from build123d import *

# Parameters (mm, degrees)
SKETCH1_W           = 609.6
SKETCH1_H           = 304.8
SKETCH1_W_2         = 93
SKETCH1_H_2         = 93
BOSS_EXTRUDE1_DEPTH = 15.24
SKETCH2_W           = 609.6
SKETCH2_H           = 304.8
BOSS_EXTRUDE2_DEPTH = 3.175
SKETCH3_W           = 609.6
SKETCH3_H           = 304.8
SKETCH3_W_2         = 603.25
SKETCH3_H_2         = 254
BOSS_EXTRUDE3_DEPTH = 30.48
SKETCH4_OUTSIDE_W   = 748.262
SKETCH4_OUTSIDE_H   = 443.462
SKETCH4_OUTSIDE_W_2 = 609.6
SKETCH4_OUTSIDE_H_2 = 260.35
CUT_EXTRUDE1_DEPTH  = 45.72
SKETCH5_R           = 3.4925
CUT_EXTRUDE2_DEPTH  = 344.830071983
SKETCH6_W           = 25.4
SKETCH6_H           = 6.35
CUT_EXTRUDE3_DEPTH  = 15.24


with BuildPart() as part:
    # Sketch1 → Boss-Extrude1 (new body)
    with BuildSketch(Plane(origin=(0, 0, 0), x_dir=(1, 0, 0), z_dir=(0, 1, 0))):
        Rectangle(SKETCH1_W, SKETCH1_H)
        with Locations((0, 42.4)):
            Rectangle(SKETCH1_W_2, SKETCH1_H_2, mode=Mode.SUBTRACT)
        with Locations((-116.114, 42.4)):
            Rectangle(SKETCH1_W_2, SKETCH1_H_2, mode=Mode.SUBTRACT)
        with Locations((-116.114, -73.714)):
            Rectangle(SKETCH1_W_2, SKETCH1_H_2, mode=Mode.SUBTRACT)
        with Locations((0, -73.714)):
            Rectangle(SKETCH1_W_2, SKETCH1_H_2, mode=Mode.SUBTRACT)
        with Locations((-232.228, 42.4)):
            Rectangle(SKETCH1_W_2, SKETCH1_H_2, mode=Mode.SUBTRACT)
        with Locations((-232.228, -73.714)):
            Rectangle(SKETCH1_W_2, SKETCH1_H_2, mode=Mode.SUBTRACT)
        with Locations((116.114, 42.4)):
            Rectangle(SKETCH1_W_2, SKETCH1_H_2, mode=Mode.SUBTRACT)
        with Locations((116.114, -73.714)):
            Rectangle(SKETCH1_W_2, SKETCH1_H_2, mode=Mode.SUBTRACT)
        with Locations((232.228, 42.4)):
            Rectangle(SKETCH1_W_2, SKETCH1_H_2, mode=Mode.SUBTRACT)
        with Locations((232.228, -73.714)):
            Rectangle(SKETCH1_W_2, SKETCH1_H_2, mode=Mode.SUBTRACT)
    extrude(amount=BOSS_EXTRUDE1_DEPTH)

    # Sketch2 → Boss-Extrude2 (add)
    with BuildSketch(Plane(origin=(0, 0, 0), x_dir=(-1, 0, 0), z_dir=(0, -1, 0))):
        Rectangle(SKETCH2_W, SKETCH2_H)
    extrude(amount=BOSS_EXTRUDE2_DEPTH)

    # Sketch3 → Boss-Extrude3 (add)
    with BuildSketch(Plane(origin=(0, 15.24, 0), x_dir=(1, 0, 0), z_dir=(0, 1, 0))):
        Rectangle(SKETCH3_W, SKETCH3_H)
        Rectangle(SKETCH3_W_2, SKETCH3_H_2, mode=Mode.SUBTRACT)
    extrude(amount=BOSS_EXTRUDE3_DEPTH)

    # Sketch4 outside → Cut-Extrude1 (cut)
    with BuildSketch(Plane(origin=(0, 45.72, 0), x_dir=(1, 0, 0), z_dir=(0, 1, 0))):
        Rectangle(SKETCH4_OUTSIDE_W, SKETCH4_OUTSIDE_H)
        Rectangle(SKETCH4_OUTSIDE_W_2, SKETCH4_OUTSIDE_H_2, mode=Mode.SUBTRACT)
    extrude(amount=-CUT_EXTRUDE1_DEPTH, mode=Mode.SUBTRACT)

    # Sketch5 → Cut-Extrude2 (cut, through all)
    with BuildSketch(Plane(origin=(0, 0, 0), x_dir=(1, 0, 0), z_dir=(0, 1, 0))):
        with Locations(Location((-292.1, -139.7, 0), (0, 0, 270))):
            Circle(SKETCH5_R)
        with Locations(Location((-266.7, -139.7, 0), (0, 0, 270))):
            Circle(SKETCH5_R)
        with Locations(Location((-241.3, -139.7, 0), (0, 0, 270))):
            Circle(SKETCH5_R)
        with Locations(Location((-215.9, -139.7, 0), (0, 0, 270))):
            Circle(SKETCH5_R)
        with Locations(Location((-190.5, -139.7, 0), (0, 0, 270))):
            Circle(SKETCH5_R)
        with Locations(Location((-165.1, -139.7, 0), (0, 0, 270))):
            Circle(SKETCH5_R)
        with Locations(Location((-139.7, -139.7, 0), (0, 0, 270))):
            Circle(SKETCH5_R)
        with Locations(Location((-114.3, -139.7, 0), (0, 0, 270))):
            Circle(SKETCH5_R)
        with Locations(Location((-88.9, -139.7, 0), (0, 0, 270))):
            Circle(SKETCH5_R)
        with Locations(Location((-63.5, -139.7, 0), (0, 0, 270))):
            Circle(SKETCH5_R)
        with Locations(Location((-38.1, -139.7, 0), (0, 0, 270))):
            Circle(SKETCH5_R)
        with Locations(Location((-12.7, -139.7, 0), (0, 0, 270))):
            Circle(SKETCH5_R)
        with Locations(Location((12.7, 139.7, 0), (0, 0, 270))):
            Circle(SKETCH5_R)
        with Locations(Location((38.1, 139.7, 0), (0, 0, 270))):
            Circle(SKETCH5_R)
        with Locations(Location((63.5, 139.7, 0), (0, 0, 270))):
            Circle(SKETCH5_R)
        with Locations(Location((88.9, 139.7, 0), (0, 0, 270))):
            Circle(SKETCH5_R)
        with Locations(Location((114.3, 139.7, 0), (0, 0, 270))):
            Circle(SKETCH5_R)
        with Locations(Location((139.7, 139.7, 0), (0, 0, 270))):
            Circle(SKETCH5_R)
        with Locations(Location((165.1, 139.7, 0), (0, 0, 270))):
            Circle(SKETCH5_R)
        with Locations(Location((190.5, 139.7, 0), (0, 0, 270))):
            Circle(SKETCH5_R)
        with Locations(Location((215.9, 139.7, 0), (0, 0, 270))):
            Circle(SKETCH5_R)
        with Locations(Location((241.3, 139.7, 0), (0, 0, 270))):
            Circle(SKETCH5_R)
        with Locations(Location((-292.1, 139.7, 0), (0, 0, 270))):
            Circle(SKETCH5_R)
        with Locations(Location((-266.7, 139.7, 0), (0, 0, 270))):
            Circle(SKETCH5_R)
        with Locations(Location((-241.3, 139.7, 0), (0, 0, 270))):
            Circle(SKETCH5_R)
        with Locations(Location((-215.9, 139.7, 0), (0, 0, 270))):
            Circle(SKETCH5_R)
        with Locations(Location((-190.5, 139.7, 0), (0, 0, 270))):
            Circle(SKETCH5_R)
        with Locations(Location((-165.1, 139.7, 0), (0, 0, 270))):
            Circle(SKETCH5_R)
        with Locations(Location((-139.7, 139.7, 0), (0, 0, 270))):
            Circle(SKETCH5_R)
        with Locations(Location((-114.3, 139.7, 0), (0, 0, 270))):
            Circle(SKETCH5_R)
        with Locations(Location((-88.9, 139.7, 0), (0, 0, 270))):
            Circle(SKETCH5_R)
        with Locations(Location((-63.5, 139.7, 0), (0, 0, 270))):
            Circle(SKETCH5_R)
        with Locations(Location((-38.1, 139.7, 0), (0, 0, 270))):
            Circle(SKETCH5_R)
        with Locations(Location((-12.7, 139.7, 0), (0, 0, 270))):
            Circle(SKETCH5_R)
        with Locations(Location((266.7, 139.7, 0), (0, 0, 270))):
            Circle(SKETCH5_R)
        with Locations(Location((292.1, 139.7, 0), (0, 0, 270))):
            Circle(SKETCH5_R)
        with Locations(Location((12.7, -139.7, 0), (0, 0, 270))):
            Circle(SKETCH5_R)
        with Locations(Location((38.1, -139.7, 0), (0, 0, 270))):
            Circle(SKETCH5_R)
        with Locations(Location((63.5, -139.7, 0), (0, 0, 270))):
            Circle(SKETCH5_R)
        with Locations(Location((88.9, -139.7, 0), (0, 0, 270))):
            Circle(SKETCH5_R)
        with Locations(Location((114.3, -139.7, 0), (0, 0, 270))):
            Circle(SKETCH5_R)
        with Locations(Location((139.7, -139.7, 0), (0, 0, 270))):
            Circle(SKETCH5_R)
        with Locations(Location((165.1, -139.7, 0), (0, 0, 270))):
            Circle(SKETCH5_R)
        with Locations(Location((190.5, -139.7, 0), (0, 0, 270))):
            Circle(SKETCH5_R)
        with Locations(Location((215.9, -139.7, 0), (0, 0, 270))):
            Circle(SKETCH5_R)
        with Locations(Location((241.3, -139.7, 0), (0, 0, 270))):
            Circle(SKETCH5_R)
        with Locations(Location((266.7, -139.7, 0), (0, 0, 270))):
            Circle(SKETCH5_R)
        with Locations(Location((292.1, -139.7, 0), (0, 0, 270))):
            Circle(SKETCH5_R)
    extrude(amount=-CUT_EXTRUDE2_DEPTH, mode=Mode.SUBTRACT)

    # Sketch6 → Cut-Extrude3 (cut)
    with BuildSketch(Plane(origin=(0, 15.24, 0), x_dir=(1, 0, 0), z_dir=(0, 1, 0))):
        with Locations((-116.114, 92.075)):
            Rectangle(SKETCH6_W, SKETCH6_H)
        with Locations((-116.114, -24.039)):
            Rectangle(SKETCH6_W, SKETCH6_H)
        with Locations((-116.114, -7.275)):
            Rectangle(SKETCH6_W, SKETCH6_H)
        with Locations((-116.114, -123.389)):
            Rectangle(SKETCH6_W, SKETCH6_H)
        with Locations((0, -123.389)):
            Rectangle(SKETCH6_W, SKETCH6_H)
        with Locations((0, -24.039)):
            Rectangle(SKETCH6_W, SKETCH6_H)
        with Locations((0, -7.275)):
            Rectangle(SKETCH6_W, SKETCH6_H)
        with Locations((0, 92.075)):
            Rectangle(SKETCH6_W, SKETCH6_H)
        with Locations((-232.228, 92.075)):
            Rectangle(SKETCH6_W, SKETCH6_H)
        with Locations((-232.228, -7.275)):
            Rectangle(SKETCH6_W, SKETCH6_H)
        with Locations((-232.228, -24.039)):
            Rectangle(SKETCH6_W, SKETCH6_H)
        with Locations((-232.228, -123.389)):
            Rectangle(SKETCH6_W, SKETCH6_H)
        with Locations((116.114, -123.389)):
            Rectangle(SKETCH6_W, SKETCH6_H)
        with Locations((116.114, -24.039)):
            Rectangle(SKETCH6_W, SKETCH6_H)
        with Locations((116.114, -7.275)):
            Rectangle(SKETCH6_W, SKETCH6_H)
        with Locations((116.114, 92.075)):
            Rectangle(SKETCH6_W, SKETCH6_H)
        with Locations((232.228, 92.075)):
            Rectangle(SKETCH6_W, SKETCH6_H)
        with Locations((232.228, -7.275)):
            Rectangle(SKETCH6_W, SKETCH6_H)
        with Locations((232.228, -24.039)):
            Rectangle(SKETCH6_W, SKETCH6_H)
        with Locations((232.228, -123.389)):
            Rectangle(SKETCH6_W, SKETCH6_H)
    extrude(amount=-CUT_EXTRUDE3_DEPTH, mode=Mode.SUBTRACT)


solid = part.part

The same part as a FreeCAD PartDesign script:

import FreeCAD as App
import Part
import Sketcher
from FreeCAD import Vector
Q = App.Units.Quantity


def add_polygon(sketch, points):
    """Adds a closed chain of lines whose ends are joined by coincident constraints."""
    first, n = sketch.GeometryCount, len(points)
    for a, b in zip(points, points[1:] + points[:1]):
        sketch.addGeometry(Part.LineSegment(App.Vector(*a, 0), App.Vector(*b, 0)), False)
    for i in range(n):
        sketch.addConstraint(Sketcher.Constraint("Coincident", first + i, 2, first + (i + 1) % n, 1))

doc = App.newDocument("Part")
body = doc.addObject("PartDesign::Body", "Body")

# Sketch on XZ plane
sketch1 = body.newObject("Sketcher::SketchObject", "Sketch")
sketch1.AttachmentSupport = (doc.getObject("XZ_Plane"), [""])
sketch1.MapMode = "FlatFace"
add_polygon(sketch1, [(-304.8, -152.4), (-304.8, 152.4), (304.8, 152.4), (304.8, -152.4)])  # lines 0-3
add_polygon(sketch1, [(-185.728, 120.214), (-278.728, 120.214), (-278.728, 27.214), (-185.728, 27.214)])  # lines 4-7
add_polygon(sketch1, [(-69.614, 120.214), (-162.614, 120.214), (-162.614, 27.214), (-69.614, 27.214)])  # lines 8-11
add_polygon(sketch1, [(46.5, 120.214), (-46.5, 120.214), (-46.5, 27.214), (46.5, 27.214)])  # lines 12-15
add_polygon(sketch1, [(162.614, 120.214), (69.614, 120.214), (69.614, 27.214), (162.614, 27.214)])  # lines 16-19
add_polygon(sketch1, [(278.728, 120.214), (185.728, 120.214), (185.728, 27.214), (278.728, 27.214)])  # lines 20-23
add_polygon(sketch1, [(-185.728, 4.1), (-278.728, 4.1), (-278.728, -88.9), (-185.728, -88.9)])  # lines 24-27
add_polygon(sketch1, [(-69.614, 4.1), (-162.614, 4.1), (-162.614, -88.9), (-69.614, -88.9)])  # lines 28-31
add_polygon(sketch1, [(46.5, 4.1), (-46.5, 4.1), (-46.5, -88.9), (46.5, -88.9)])  # lines 32-35
add_polygon(sketch1, [(162.614, 4.1), (69.614, 4.1), (69.614, -88.9), (162.614, -88.9)])  # lines 36-39
add_polygon(sketch1, [(278.728, 4.1), (185.728, 4.1), (185.728, -88.9), (278.728, -88.9)])  # lines 40-43
sketch1.addConstraint([
    Sketcher.Constraint("Vertical", 0),
    Sketcher.Constraint("Horizontal", 1),
    Sketcher.Constraint("Vertical", 2),
    Sketcher.Constraint("Horizontal", 3),
    Sketcher.Constraint("Horizontal", 4),
    Sketcher.Constraint("Vertical", 5),
    Sketcher.Constraint("Horizontal", 6),
    Sketcher.Constraint("Vertical", 7),
    Sketcher.Constraint("Horizontal", 8),
    Sketcher.Constraint("Vertical", 9),
    Sketcher.Constraint("Horizontal", 10),
    Sketcher.Constraint("Vertical", 11),
    Sketcher.Constraint("Horizontal", 12),
    Sketcher.Constraint("Vertical", 13),
    Sketcher.Constraint("Horizontal", 14),
    Sketcher.Constraint("Vertical", 15),
    Sketcher.Constraint("Horizontal", 16),
    Sketcher.Constraint("Vertical", 17),
    Sketcher.Constraint("Horizontal", 18),
    Sketcher.Constraint("Vertical", 19),
    Sketcher.Constraint("Horizontal", 20),
    Sketcher.Constraint("Vertical", 21),
    Sketcher.Constraint("Horizontal", 22),
    Sketcher.Constraint("Vertical", 23),
    Sketcher.Constraint("Horizontal", 24),
    Sketcher.Constraint("Vertical", 25),
    Sketcher.Constraint("Horizontal", 26),
    Sketcher.Constraint("Vertical", 27),
    Sketcher.Constraint("Horizontal", 28),
    Sketcher.Constraint("Vertical", 29),
    Sketcher.Constraint("Horizontal", 30),
    Sketcher.Constraint("Vertical", 31),
    Sketcher.Constraint("Horizontal", 32),
    Sketcher.Constraint("Vertical", 33),
    Sketcher.Constraint("Horizontal", 34),
    Sketcher.Constraint("Vertical", 35),
    Sketcher.Constraint("Horizontal", 36),
    Sketcher.Constraint("Vertical", 37),
    Sketcher.Constraint("Horizontal", 38),
    Sketcher.Constraint("Vertical", 39),
    Sketcher.Constraint("Horizontal", 40),
    Sketcher.Constraint("Vertical", 41),
    Sketcher.Constraint("Horizontal", 42),
    Sketcher.Constraint("Vertical", 43),
    Sketcher.Constraint("Symmetric", 0, 2, 2, 2, -1, 1),
    Sketcher.Constraint("Symmetric", 11, 2, 16, 2, -2),
    Sketcher.Constraint("Symmetric", 9, 2, 18, 2, -2),
    Sketcher.Constraint("Symmetric", 7, 2, 20, 2, -2),
    Sketcher.Constraint("Symmetric", 5, 2, 22, 2, -2),
    Sketcher.Constraint("Symmetric", 31, 2, 36, 2, -2),
    Sketcher.Constraint("Symmetric", 29, 2, 38, 2, -2),
    Sketcher.Constraint("Symmetric", 27, 2, 40, 2, -2),
    Sketcher.Constraint("Symmetric", 25, 2, 42, 2, -2),
    Sketcher.Constraint("Horizontal", 7, 2, 8, 2),
    Sketcher.Constraint("Horizontal", 6, 2, 9, 2),
    Sketcher.Constraint("Horizontal", 11, 2, 12, 2),
    Sketcher.Constraint("Horizontal", 10, 2, 13, 2),
    Sketcher.Constraint("Horizontal", 27, 2, 28, 2),
    Sketcher.Constraint("Horizontal", 26, 2, 29, 2),
    Sketcher.Constraint("Horizontal", 31, 2, 32, 2),
    Sketcher.Constraint("Horizontal", 30, 2, 33, 2),
    Sketcher.Constraint("Vertical", 5, 2, 24, 2),
    Sketcher.Constraint("Vertical", 7, 2, 26, 2),
    Sketcher.Constraint("Vertical", 9, 2, 28, 2),
    Sketcher.Constraint("Vertical", 11, 2, 30, 2),
    Sketcher.Constraint("Vertical", 13, 2, 32, 2),
    Sketcher.Constraint("Vertical", 15, 2, 34, 2),
    Sketcher.Constraint("Equal", 6, 8),
    Sketcher.Constraint("Equal", 10, 12),
    Sketcher.Constraint("Equal", 42, 5),
    Sketcher.Constraint("Equal", 23, 25),
    Sketcher.Constraint("DistanceX", 1, 1, 1, 2, Q("24 in")),
    Sketcher.Constraint("DistanceY", 0, 1, 0, 2, Q("12 in")),
    Sketcher.Constraint("DistanceY", 25, 2, -1, 1, Q("3.5 in")),
    Sketcher.Constraint("DistanceX", 7, 2, 8, 2, Q("0.91 in")),
    Sketcher.Constraint("DistanceX", 11, 2, 12, 2, Q("0.91 in")),
    Sketcher.Constraint("DistanceX", 15, 2, 16, 2, Q("0.91 in")),
    Sketcher.Constraint("DistanceY", 24, 2, 5, 2, Q("0.91 in")),
    Sketcher.Constraint("DistanceX", 4, 2, 4, 1, Q("93 mm")),
])
pad1 = body.newObject("PartDesign::Pad", "Pad")
pad1.Profile = sketch1
pad1.Length = Q("0.6 in")
pad1.Reversed = True

# Sketch on XZ plane
sketch2 = body.newObject("Sketcher::SketchObject", "Sketch001")
sketch2.AttachmentSupport = (doc.getObject("XZ_Plane"), [""])
sketch2.MapMode = "FlatFace"
add_polygon(sketch2, [(304.8, -152.4), (304.8, 152.4), (-304.8, 152.4), (-304.8, -152.4)])  # lines 0-3
sketch2.addConstraint([
    Sketcher.Constraint("Vertical", 0),
    Sketcher.Constraint("Horizontal", 1),
    Sketcher.Constraint("Vertical", 2),
    Sketcher.Constraint("Horizontal", 3),
    Sketcher.Constraint("Symmetric", 0, 2, 2, 2, -1, 1),
    Sketcher.Constraint("DistanceX", 1, 2, 1, 1, Q("24 in")),
    Sketcher.Constraint("DistanceY", 0, 1, 0, 2, Q("12 in")),
])
pad2 = body.newObject("PartDesign::Pad", "Pad001")
pad2.Profile = sketch2
pad2.Length = Q("0.125 in")

# Sketch on XZ plane
sketch3 = body.newObject("Sketcher::SketchObject", "Sketch002")
sketch3.AttachmentSupport = (doc.getObject("XZ_Plane"), [""])
sketch3.MapMode = "FlatFace"
sketch3.AttachmentOffset = App.Placement(Vector(0, 0, -0.6 * 25.4), App.Rotation())
add_polygon(sketch3, [(-304.8, -152.4), (-304.8, 152.4), (304.8, 152.4), (304.8, -152.4)])  # lines 0-3
add_polygon(sketch3, [(301.625, 127), (-301.625, 127), (-301.625, -127), (301.625, -127)])  # lines 4-7
sketch3.addConstraint([
    Sketcher.Constraint("Vertical", 0),
    Sketcher.Constraint("Horizontal", 1),
    Sketcher.Constraint("Vertical", 2),
    Sketcher.Constraint("Horizontal", 3),
    Sketcher.Constraint("Horizontal", 4),
    Sketcher.Constraint("Vertical", 5),
    Sketcher.Constraint("Horizontal", 6),
    Sketcher.Constraint("Vertical", 7),
    Sketcher.Constraint("Symmetric", 0, 2, 2, 2, -1, 1),
    Sketcher.Constraint("Symmetric", 4, 2, 6, 2, -1, 1),
    Sketcher.Constraint("DistanceX", 1, 1, 1, 2, Q("24 in")),
    Sketcher.Constraint("DistanceY", 0, 1, 0, 2, Q("12 in")),
    Sketcher.Constraint("DistanceY", 5, 2, 5, 1, Q("10 in")),
    Sketcher.Constraint("DistanceX", 4, 2, 4, 1, Q("23.75 in")),
])
pad3 = body.newObject("PartDesign::Pad", "Pad002")
pad3.Profile = sketch3
pad3.Length = Q("1.2 in")
pad3.Reversed = True

# Sketch on XZ plane
sketch4 = body.newObject("Sketcher::SketchObject", "Sketch003")
sketch4.AttachmentSupport = (doc.getObject("XZ_Plane"), [""])
sketch4.MapMode = "FlatFace"
sketch4.AttachmentOffset = App.Placement(Vector(0, 0, -1.8 * 25.4), App.Rotation())
add_polygon(sketch4, [(-374.131, -221.731), (-374.131, 221.731), (374.131, 221.731), (374.131, -221.731)])  # lines 0-3
add_polygon(sketch4, [(304.8, 130.175), (-304.8, 130.175), (-304.8, -130.175), (304.8, -130.175)])  # lines 4-7
sketch4.addConstraint([
    Sketcher.Constraint("Vertical", 0),
    Sketcher.Constraint("Horizontal", 1),
    Sketcher.Constraint("Vertical", 2),
    Sketcher.Constraint("Horizontal", 3),
    Sketcher.Constraint("Horizontal", 4),
    Sketcher.Constraint("Vertical", 5),
    Sketcher.Constraint("Horizontal", 6),
    Sketcher.Constraint("Vertical", 7),
    Sketcher.Constraint("Symmetric", 0, 2, 2, 2, -1, 1),
    Sketcher.Constraint("Symmetric", 4, 2, 6, 2, -1, 1),
    Sketcher.Constraint("DistanceX", 4, 2, 4, 1, Q("24 in")),
    Sketcher.Constraint("DistanceY", 5, 2, 5, 1, Q("10.25 in")),
    Sketcher.Constraint("DistanceX", 1, 1, 1, 2, Q("748.262 mm")),
    Sketcher.Constraint("DistanceY", 0, 1, 0, 2, Q("443.462 mm")),
])
pocket1 = body.newObject("PartDesign::Pocket", "Pocket")
pocket1.Profile = sketch4
pocket1.Length = Q("1.8 in")
pocket1.Reversed = True

# Sketch on XZ plane
sketch5 = body.newObject("Sketcher::SketchObject", "Sketch004")
sketch5.AttachmentSupport = (doc.getObject("XZ_Plane"), [""])
sketch5.MapMode = "FlatFace"
sketch5.addGeometry([
    Part.Circle(Vector(-292.1, 139.7, 0), Vector(0, 0, 1), 3.4925),  # 0
    Part.Circle(Vector(-266.7, 139.7, 0), Vector(0, 0, 1), 3.4925),  # 1
    Part.Circle(Vector(-241.3, 139.7, 0), Vector(0, 0, 1), 3.4925),  # 2
    Part.Circle(Vector(-215.9, 139.7, 0), Vector(0, 0, 1), 3.4925),  # 3
    Part.Circle(Vector(-190.5, 139.7, 0), Vector(0, 0, 1), 3.4925),  # 4
    Part.Circle(Vector(-165.1, 139.7, 0), Vector(0, 0, 1), 3.4925),  # 5
    Part.Circle(Vector(-139.7, 139.7, 0), Vector(0, 0, 1), 3.4925),  # 6
    Part.Circle(Vector(-114.3, 139.7, 0), Vector(0, 0, 1), 3.4925),  # 7
    Part.Circle(Vector(-88.9, 139.7, 0), Vector(0, 0, 1), 3.4925),  # 8
    Part.Circle(Vector(-63.5, 139.7, 0), Vector(0, 0, 1), 3.4925),  # 9
    Part.Circle(Vector(-38.1, 139.7, 0), Vector(0, 0, 1), 3.4925),  # 10
    Part.Circle(Vector(-12.7, 139.7, 0), Vector(0, 0, 1), 3.4925),  # 11
    Part.Circle(Vector(12.7, -139.7, 0), Vector(0, 0, 1), 3.4925),  # 12
    Part.Circle(Vector(38.1, -139.7, 0), Vector(0, 0, 1), 3.4925),  # 13
    Part.Circle(Vector(63.5, -139.7, 0), Vector(0, 0, 1), 3.4925),  # 14
    Part.Circle(Vector(88.9, -139.7, 0), Vector(0, 0, 1), 3.4925),  # 15
    Part.Circle(Vector(114.3, -139.7, 0), Vector(0, 0, 1), 3.4925),  # 16
    Part.Circle(Vector(139.7, -139.7, 0), Vector(0, 0, 1), 3.4925),  # 17
    Part.Circle(Vector(165.1, -139.7, 0), Vector(0, 0, 1), 3.4925),  # 18
    Part.Circle(Vector(190.5, -139.7, 0), Vector(0, 0, 1), 3.4925),  # 19
    Part.Circle(Vector(215.9, -139.7, 0), Vector(0, 0, 1), 3.4925),  # 20
    Part.Circle(Vector(241.3, -139.7, 0), Vector(0, 0, 1), 3.4925),  # 21
    Part.Circle(Vector(-292.1, -139.7, 0), Vector(0, 0, 1), 3.4925),  # 22
    Part.Circle(Vector(-266.7, -139.7, 0), Vector(0, 0, 1), 3.4925),  # 23
    Part.Circle(Vector(-241.3, -139.7, 0), Vector(0, 0, 1), 3.4925),  # 24
    Part.Circle(Vector(-215.9, -139.7, 0), Vector(0, 0, 1), 3.4925),  # 25
    Part.Circle(Vector(-190.5, -139.7, 0), Vector(0, 0, 1), 3.4925),  # 26
    Part.Circle(Vector(-165.1, -139.7, 0), Vector(0, 0, 1), 3.4925),  # 27
    Part.Circle(Vector(-139.7, -139.7, 0), Vector(0, 0, 1), 3.4925),  # 28
    Part.Circle(Vector(-114.3, -139.7, 0), Vector(0, 0, 1), 3.4925),  # 29
    Part.Circle(Vector(-88.9, -139.7, 0), Vector(0, 0, 1), 3.4925),  # 30
    Part.Circle(Vector(-63.5, -139.7, 0), Vector(0, 0, 1), 3.4925),  # 31
    Part.Circle(Vector(-38.1, -139.7, 0), Vector(0, 0, 1), 3.4925),  # 32
    Part.Circle(Vector(-12.7, -139.7, 0), Vector(0, 0, 1), 3.4925),  # 33
    Part.Circle(Vector(266.7, -139.7, 0), Vector(0, 0, 1), 3.4925),  # 34
    Part.Circle(Vector(292.1, -139.7, 0), Vector(0, 0, 1), 3.4925),  # 35
    Part.Circle(Vector(12.7, 139.7, 0), Vector(0, 0, 1), 3.4925),  # 36
    Part.Circle(Vector(38.1, 139.7, 0), Vector(0, 0, 1), 3.4925),  # 37
    Part.Circle(Vector(63.5, 139.7, 0), Vector(0, 0, 1), 3.4925),  # 38
    Part.Circle(Vector(88.9, 139.7, 0), Vector(0, 0, 1), 3.4925),  # 39
    Part.Circle(Vector(114.3, 139.7, 0), Vector(0, 0, 1), 3.4925),  # 40
    Part.Circle(Vector(139.7, 139.7, 0), Vector(0, 0, 1), 3.4925),  # 41
    Part.Circle(Vector(165.1, 139.7, 0), Vector(0, 0, 1), 3.4925),  # 42
    Part.Circle(Vector(190.5, 139.7, 0), Vector(0, 0, 1), 3.4925),  # 43
    Part.Circle(Vector(215.9, 139.7, 0), Vector(0, 0, 1), 3.4925),  # 44
    Part.Circle(Vector(241.3, 139.7, 0), Vector(0, 0, 1), 3.4925),  # 45
    Part.Circle(Vector(266.7, 139.7, 0), Vector(0, 0, 1), 3.4925),  # 46
    Part.Circle(Vector(292.1, 139.7, 0), Vector(0, 0, 1), 3.4925),  # 47
], False)
sketch5.addConstraint([
    Sketcher.Constraint("Equal", 0, 1),
    Sketcher.Constraint("Equal", 1, 2),
    Sketcher.Constraint("Equal", 2, 3),
    Sketcher.Constraint("Equal", 3, 4),
    Sketcher.Constraint("Equal", 4, 5),
    Sketcher.Constraint("Equal", 5, 6),
    Sketcher.Constraint("Equal", 6, 7),
    Sketcher.Constraint("Equal", 7, 8),
    Sketcher.Constraint("Equal", 8, 9),
    Sketcher.Constraint("Equal", 9, 10),
    Sketcher.Constraint("Equal", 10, 11),
    Sketcher.Constraint("Equal", 11, 12),
    Sketcher.Constraint("Equal", 12, 13),
    Sketcher.Constraint("Equal", 13, 14),
    Sketcher.Constraint("Equal", 14, 15),
    Sketcher.Constraint("Equal", 15, 16),
    Sketcher.Constraint("Equal", 16, 17),
    Sketcher.Constraint("Equal", 17, 18),
    Sketcher.Constraint("Equal", 18, 19),
    Sketcher.Constraint("Equal", 19, 20),
    Sketcher.Constraint("Equal", 20, 21),
    Sketcher.Constraint("Equal", 21, 22),
    Sketcher.Constraint("Equal", 22, 23),
    Sketcher.Constraint("Equal", 23, 24),
    Sketcher.Constraint("Equal", 24, 25),
    Sketcher.Constraint("Equal", 25, 26),
    Sketcher.Constraint("Equal", 26, 27),
    Sketcher.Constraint("Equal", 27, 28),
    Sketcher.Constraint("Equal", 28, 29),
    Sketcher.Constraint("Equal", 29, 30),
    Sketcher.Constraint("Equal", 30, 31),
    Sketcher.Constraint("Equal", 31, 32),
    Sketcher.Constraint("Equal", 32, 33),
    Sketcher.Constraint("Equal", 33, 34),
    Sketcher.Constraint("Equal", 34, 35),
    Sketcher.Constraint("Equal", 35, 36),
    Sketcher.Constraint("Equal", 36, 37),
    Sketcher.Constraint("Equal", 37, 38),
    Sketcher.Constraint("Equal", 38, 39),
    Sketcher.Constraint("Equal", 39, 40),
    Sketcher.Constraint("Equal", 40, 41),
    Sketcher.Constraint("Equal", 41, 42),
    Sketcher.Constraint("Equal", 42, 43),
    Sketcher.Constraint("Equal", 43, 44),
    Sketcher.Constraint("Equal", 44, 45),
    Sketcher.Constraint("Equal", 45, 46),
    Sketcher.Constraint("Equal", 46, 47),
    Sketcher.Constraint("Symmetric", 11, 3, 12, 3, -1, 1),
    Sketcher.Constraint("Symmetric", 10, 3, 13, 3, -1, 1),
    Sketcher.Constraint("Symmetric", 9, 3, 14, 3, -1, 1),
    Sketcher.Constraint("Symmetric", 8, 3, 15, 3, -1, 1),
    Sketcher.Constraint("Symmetric", 7, 3, 16, 3, -1, 1),
    Sketcher.Constraint("Symmetric", 6, 3, 17, 3, -1, 1),
    Sketcher.Constraint("Symmetric", 5, 3, 18, 3, -1, 1),
    Sketcher.Constraint("Symmetric", 4, 3, 19, 3, -1, 1),
    Sketcher.Constraint("Symmetric", 3, 3, 20, 3, -1, 1),
    Sketcher.Constraint("Symmetric", 2, 3, 21, 3, -1, 1),
    Sketcher.Constraint("Symmetric", 1, 3, 34, 3, -1, 1),
    Sketcher.Constraint("Symmetric", 0, 3, 35, 3, -1, 1),
    Sketcher.Constraint("Symmetric", 33, 3, 36, 3, -1, 1),
    Sketcher.Constraint("Symmetric", 32, 3, 37, 3, -1, 1),
    Sketcher.Constraint("Symmetric", 31, 3, 38, 3, -1, 1),
    Sketcher.Constraint("Symmetric", 30, 3, 39, 3, -1, 1),
    Sketcher.Constraint("Symmetric", 29, 3, 40, 3, -1, 1),
    Sketcher.Constraint("Symmetric", 28, 3, 41, 3, -1, 1),
    Sketcher.Constraint("Symmetric", 27, 3, 42, 3, -1, 1),
    Sketcher.Constraint("Symmetric", 26, 3, 43, 3, -1, 1),
    Sketcher.Constraint("Symmetric", 25, 3, 44, 3, -1, 1),
    Sketcher.Constraint("Symmetric", 24, 3, 45, 3, -1, 1),
    Sketcher.Constraint("Symmetric", 23, 3, 46, 3, -1, 1),
    Sketcher.Constraint("Symmetric", 22, 3, 47, 3, -1, 1),
    Sketcher.Constraint("Symmetric", 21, 3, 24, 3, -2),
    Sketcher.Constraint("Symmetric", 20, 3, 25, 3, -2),
    Sketcher.Constraint("Symmetric", 19, 3, 26, 3, -2),
    Sketcher.Constraint("Symmetric", 18, 3, 27, 3, -2),
    Sketcher.Constraint("Symmetric", 17, 3, 28, 3, -2),
    Sketcher.Constraint("Symmetric", 16, 3, 29, 3, -2),
    Sketcher.Constraint("Symmetric", 15, 3, 30, 3, -2),
    Sketcher.Constraint("Symmetric", 14, 3, 31, 3, -2),
    Sketcher.Constraint("Symmetric", 13, 3, 32, 3, -2),
    Sketcher.Constraint("Symmetric", 12, 3, 33, 3, -2),
    Sketcher.Constraint("Symmetric", 23, 3, 34, 3, -2),
    Sketcher.Constraint("Symmetric", 22, 3, 35, 3, -2),
    Sketcher.Constraint("Horizontal", 0, 3, 1, 3),
    Sketcher.Constraint("Horizontal", 1, 3, 2, 3),
    Sketcher.Constraint("Horizontal", 2, 3, 3, 3),
    Sketcher.Constraint("Horizontal", 3, 3, 4, 3),
    Sketcher.Constraint("Horizontal", 4, 3, 5, 3),
    Sketcher.Constraint("Horizontal", 5, 3, 6, 3),
    Sketcher.Constraint("Horizontal", 6, 3, 7, 3),
    Sketcher.Constraint("Horizontal", 7, 3, 8, 3),
    Sketcher.Constraint("Horizontal", 8, 3, 9, 3),
    Sketcher.Constraint("Horizontal", 9, 3, 10, 3),
    Sketcher.Constraint("Horizontal", 10, 3, 11, 3),
    Sketcher.Constraint("Diameter", 0, Q("0.275 in")),
    Sketcher.Constraint("DistanceX", 0, 3, 1, 3, Q("1 in")),
    Sketcher.Constraint("DistanceX", 1, 3, 2, 3, Q("1 in")),
    Sketcher.Constraint("DistanceX", 2, 3, 3, 3, Q("1 in")),
    Sketcher.Constraint("DistanceX", 3, 3, 4, 3, Q("1 in")),
    Sketcher.Constraint("DistanceX", 4, 3, 5, 3, Q("1 in")),
    Sketcher.Constraint("DistanceX", 5, 3, 6, 3, Q("1 in")),
    Sketcher.Constraint("DistanceX", 6, 3, 7, 3, Q("1 in")),
    Sketcher.Constraint("DistanceX", 7, 3, 8, 3, Q("1 in")),
    Sketcher.Constraint("DistanceX", 8, 3, 9, 3, Q("1 in")),
    Sketcher.Constraint("DistanceX", 9, 3, 10, 3, Q("1 in")),
    Sketcher.Constraint("DistanceX", 10, 3, 11, 3, Q("1 in")),
    Sketcher.Constraint("DistanceX", 11, 3, 12, 3, Q("1 in")),
    Sketcher.Constraint("DistanceY", 12, 3, 11, 3, Q("11 in")),
])
pocket2 = body.newObject("PartDesign::Pocket", "Pocket001")
pocket2.Profile = sketch5
pocket2.Type = "ThroughAll"
pocket2.Reversed = True

# Sketch on XZ plane
sketch6 = body.newObject("Sketcher::SketchObject", "Sketch005")
sketch6.AttachmentSupport = (doc.getObject("XZ_Plane"), [""])
sketch6.MapMode = "FlatFace"
sketch6.AttachmentOffset = App.Placement(Vector(0, 0, -0.6 * 25.4), App.Rotation())
add_polygon(sketch6, [(-128.814, -95.25), (-128.814, -88.9), (-103.414, -88.9), (-103.414, -95.25)])  # lines 0-3
add_polygon(sketch6, [(-128.814, 20.864), (-128.814, 27.214), (-103.414, 27.214), (-103.414, 20.864)])  # lines 4-7
add_polygon(sketch6, [(-128.814, 4.1), (-128.814, 10.45), (-103.414, 10.45), (-103.414, 4.1)])  # lines 8-11
add_polygon(sketch6, [(-128.814, 120.214), (-128.814, 126.564), (-103.414, 126.564), (-103.414, 120.214)])  # lines 12-15
add_polygon(sketch6, [(-12.7, 120.214), (-12.7, 126.564), (12.7, 126.564), (12.7, 120.214)])  # lines 16-19
add_polygon(sketch6, [(-12.7, 20.864), (-12.7, 27.214), (12.7, 27.214), (12.7, 20.864)])  # lines 20-23
add_polygon(sketch6, [(-12.7, 4.1), (-12.7, 10.45), (12.7, 10.45), (12.7, 4.1)])  # lines 24-27
add_polygon(sketch6, [(-12.7, -95.25), (-12.7, -88.9), (12.7, -88.9), (12.7, -95.25)])  # lines 28-31
add_polygon(sketch6, [(-244.928, -95.25), (-244.928, -88.9), (-219.528, -88.9), (-219.528, -95.25)])  # lines 32-35
add_polygon(sketch6, [(-244.928, 4.1), (-244.928, 10.45), (-219.528, 10.45), (-219.528, 4.1)])  # lines 36-39
add_polygon(sketch6, [(-244.928, 20.864), (-244.928, 27.214), (-219.528, 27.214), (-219.528, 20.864)])  # lines 40-43
add_polygon(sketch6, [(-244.928, 120.214), (-244.928, 126.564), (-219.528, 126.564), (-219.528, 120.214)])  # lines 44-47
add_polygon(sketch6, [(103.414, 120.214), (103.414, 126.564), (128.814, 126.564), (128.814, 120.214)])  # lines 48-51
add_polygon(sketch6, [(103.414, 20.864), (103.414, 27.214), (128.814, 27.214), (128.814, 20.864)])  # lines 52-55
add_polygon(sketch6, [(103.414, 4.1), (103.414, 10.45), (128.814, 10.45), (128.814, 4.1)])  # lines 56-59
add_polygon(sketch6, [(103.414, -95.25), (103.414, -88.9), (128.814, -88.9), (128.814, -95.25)])  # lines 60-63
add_polygon(sketch6, [(219.528, -95.25), (219.528, -88.9), (244.928, -88.9), (244.928, -95.25)])  # lines 64-67
add_polygon(sketch6, [(219.528, 4.1), (219.528, 10.45), (244.928, 10.45), (244.928, 4.1)])  # lines 68-71
add_polygon(sketch6, [(219.528, 20.864), (219.528, 27.214), (244.928, 27.214), (244.928, 20.864)])  # lines 72-75
add_polygon(sketch6, [(219.528, 120.214), (219.528, 126.564), (244.928, 126.564), (244.928, 120.214)])  # lines 76-79
sketch6.addConstraint([
    Sketcher.Constraint("Vertical", 0),
    Sketcher.Constraint("Horizontal", 1),
    Sketcher.Constraint("Vertical", 2),
    Sketcher.Constraint("Horizontal", 3),
    Sketcher.Constraint("Vertical", 4),
    Sketcher.Constraint("Horizontal", 5),
    Sketcher.Constraint("Vertical", 6),
    Sketcher.Constraint("Horizontal", 7),
    Sketcher.Constraint("Vertical", 8),
    Sketcher.Constraint("Horizontal", 9),
    Sketcher.Constraint("Vertical", 10),
    Sketcher.Constraint("Horizontal", 11),
    Sketcher.Constraint("Vertical", 12),
    Sketcher.Constraint("Horizontal", 13),
    Sketcher.Constraint("Vertical", 14),
    Sketcher.Constraint("Horizontal", 15),
    Sketcher.Constraint("Vertical", 16),
    Sketcher.Constraint("Horizontal", 17),
    Sketcher.Constraint("Vertical", 18),
    Sketcher.Constraint("Horizontal", 19),
    Sketcher.Constraint("Vertical", 20),
    Sketcher.Constraint("Horizontal", 21),
    Sketcher.Constraint("Vertical", 22),
    Sketcher.Constraint("Horizontal", 23),
    Sketcher.Constraint("Vertical", 24),
    Sketcher.Constraint("Horizontal", 25),
    Sketcher.Constraint("Vertical", 26),
    Sketcher.Constraint("Horizontal", 27),
    Sketcher.Constraint("Vertical", 28),
    Sketcher.Constraint("Horizontal", 29),
    Sketcher.Constraint("Vertical", 30),
    Sketcher.Constraint("Horizontal", 31),
    Sketcher.Constraint("Vertical", 32),
    Sketcher.Constraint("Horizontal", 33),
    Sketcher.Constraint("Vertical", 34),
    Sketcher.Constraint("Horizontal", 35),
    Sketcher.Constraint("Vertical", 36),
    Sketcher.Constraint("Horizontal", 37),
    Sketcher.Constraint("Vertical", 38),
    Sketcher.Constraint("Horizontal", 39),
    Sketcher.Constraint("Vertical", 40),
    Sketcher.Constraint("Horizontal", 41),
    Sketcher.Constraint("Vertical", 42),
    Sketcher.Constraint("Horizontal", 43),
    Sketcher.Constraint("Vertical", 44),
    Sketcher.Constraint("Horizontal", 45),
    Sketcher.Constraint("Vertical", 46),
    Sketcher.Constraint("Horizontal", 47),
    Sketcher.Constraint("Vertical", 48),
    Sketcher.Constraint("Horizontal", 49),
    Sketcher.Constraint("Vertical", 50),
    Sketcher.Constraint("Horizontal", 51),
    Sketcher.Constraint("Vertical", 52),
    Sketcher.Constraint("Horizontal", 53),
    Sketcher.Constraint("Vertical", 54),
    Sketcher.Constraint("Horizontal", 55),
    Sketcher.Constraint("Vertical", 56),
    Sketcher.Constraint("Horizontal", 57),
    Sketcher.Constraint("Vertical", 58),
    Sketcher.Constraint("Horizontal", 59),
    Sketcher.Constraint("Vertical", 60),
    Sketcher.Constraint("Horizontal", 61),
    Sketcher.Constraint("Vertical", 62),
    Sketcher.Constraint("Horizontal", 63),
    Sketcher.Constraint("Vertical", 64),
    Sketcher.Constraint("Horizontal", 65),
    Sketcher.Constraint("Vertical", 66),
    Sketcher.Constraint("Horizontal", 67),
    Sketcher.Constraint("Vertical", 68),
    Sketcher.Constraint("Horizontal", 69),
    Sketcher.Constraint("Vertical", 70),
    Sketcher.Constraint("Horizontal", 71),
    Sketcher.Constraint("Vertical", 72),
    Sketcher.Constraint("Horizontal", 73),
    Sketcher.Constraint("Vertical", 74),
    Sketcher.Constraint("Horizontal", 75),
    Sketcher.Constraint("Vertical", 76),
    Sketcher.Constraint("Horizontal", 77),
    Sketcher.Constraint("Vertical", 78),
    Sketcher.Constraint("Horizontal", 79),
    Sketcher.Constraint("Symmetric", 13, 2, 48, 2, -2),
    Sketcher.Constraint("Symmetric", 15, 2, 50, 2, -2),
    Sketcher.Constraint("Symmetric", 5, 2, 52, 2, -2),
    Sketcher.Constraint("Symmetric", 7, 2, 54, 2, -2),
    Sketcher.Constraint("Symmetric", 9, 2, 56, 2, -2),
    Sketcher.Constraint("Symmetric", 11, 2, 58, 2, -2),
    Sketcher.Constraint("Symmetric", 1, 2, 60, 2, -2),
    Sketcher.Constraint("Symmetric", 3, 2, 62, 2, -2),
    Sketcher.Constraint("Symmetric", 33, 2, 64, 2, -2),
    Sketcher.Constraint("Symmetric", 35, 2, 66, 2, -2),
    Sketcher.Constraint("Symmetric", 37, 2, 68, 2, -2),
    Sketcher.Constraint("Symmetric", 39, 2, 70, 2, -2),
    Sketcher.Constraint("Symmetric", 41, 2, 72, 2, -2),
    Sketcher.Constraint("Symmetric", 43, 2, 74, 2, -2),
    Sketcher.Constraint("Symmetric", 45, 2, 76, 2, -2),
    Sketcher.Constraint("Symmetric", 47, 2, 78, 2, -2),
    Sketcher.Constraint("Horizontal", 13, 2, 16, 2),
    Sketcher.Constraint("Horizontal", 15, 2, 18, 2),
    Sketcher.Constraint("Horizontal", 5, 2, 20, 2),
    Sketcher.Constraint("Horizontal", 7, 2, 22, 2),
    Sketcher.Constraint("Horizontal", 9, 2, 24, 2),
    Sketcher.Constraint("Horizontal", 11, 2, 26, 2),
    Sketcher.Constraint("Horizontal", 1, 2, 28, 2),
    Sketcher.Constraint("Horizontal", 3, 2, 30, 2),
    Sketcher.Constraint("Horizontal", 29, 2, 32, 2),
    Sketcher.Constraint("Horizontal", 31, 2, 34, 2),
    Sketcher.Constraint("Horizontal", 25, 2, 36, 2),
    Sketcher.Constraint("Horizontal", 27, 2, 38, 2),
    Sketcher.Constraint("Horizontal", 21, 2, 40, 2),
    Sketcher.Constraint("Horizontal", 23, 2, 42, 2),
    Sketcher.Constraint("Horizontal", 17, 2, 44, 2),
    Sketcher.Constraint("Horizontal", 19, 2, 46, 2),
    Sketcher.Constraint("Vertical", 3, 2, 4, 2),
    Sketcher.Constraint("Vertical", 2, 2, 5, 2),
    Sketcher.Constraint("Vertical", 7, 2, 8, 2),
    Sketcher.Constraint("Vertical", 6, 2, 9, 2),
    Sketcher.Constraint("Vertical", 11, 2, 12, 2),
    Sketcher.Constraint("Vertical", 10, 2, 13, 2),
    Sketcher.Constraint("Vertical", 19, 2, 20, 2),
    Sketcher.Constraint("Vertical", 18, 2, 21, 2),
    Sketcher.Constraint("Vertical", 23, 2, 24, 2),
    Sketcher.Constraint("Vertical", 22, 2, 25, 2),
    Sketcher.Constraint("Vertical", 27, 2, 28, 2),
    Sketcher.Constraint("Vertical", 26, 2, 29, 2),
    Sketcher.Constraint("Vertical", 35, 2, 36, 2),
    Sketcher.Constraint("Vertical", 34, 2, 37, 2),
    Sketcher.Constraint("Vertical", 39, 2, 40, 2),
    Sketcher.Constraint("Vertical", 38, 2, 41, 2),
    Sketcher.Constraint("Vertical", 43, 2, 44, 2),
    Sketcher.Constraint("Vertical", 42, 2, 45, 2),
    Sketcher.Constraint("Equal", 15, 17),
    Sketcher.Constraint("Equal", 31, 33),
    Sketcher.Constraint("Equal", 2, 4),
    Sketcher.Constraint("Equal", 6, 8),
    Sketcher.Constraint("Equal", 10, 12),
    Sketcher.Constraint("DistanceX", 1, 1, 1, 2, Q("1 in")),
    Sketcher.Constraint("DistanceY", 0, 1, 0, 2, Q("0.25 in")),
    Sketcher.Constraint("DistanceY", 0, 2, -1, 1, Q("3.5 in")),
    Sketcher.Constraint("DistanceX", 16, 2, -1, 1, Q("0.5 in")),
    Sketcher.Constraint("DistanceX", 0, 2, -1, 1, Q("128.814 mm")),
    Sketcher.Constraint("DistanceY", -1, 1, 4, 2, Q("27.214 mm")),
    Sketcher.Constraint("DistanceY", -1, 1, 8, 2, Q("10.45 mm")),
    Sketcher.Constraint("DistanceY", -1, 1, 12, 2, Q("126.564 mm")),
    Sketcher.Constraint("DistanceX", 32, 2, -1, 1, Q("244.928 mm")),
])
pocket3 = body.newObject("PartDesign::Pocket", "Pocket002")
pocket3.Profile = sketch6
pocket3.Length = Q("0.6 in")
pocket3.Reversed = True

doc.recompute()
